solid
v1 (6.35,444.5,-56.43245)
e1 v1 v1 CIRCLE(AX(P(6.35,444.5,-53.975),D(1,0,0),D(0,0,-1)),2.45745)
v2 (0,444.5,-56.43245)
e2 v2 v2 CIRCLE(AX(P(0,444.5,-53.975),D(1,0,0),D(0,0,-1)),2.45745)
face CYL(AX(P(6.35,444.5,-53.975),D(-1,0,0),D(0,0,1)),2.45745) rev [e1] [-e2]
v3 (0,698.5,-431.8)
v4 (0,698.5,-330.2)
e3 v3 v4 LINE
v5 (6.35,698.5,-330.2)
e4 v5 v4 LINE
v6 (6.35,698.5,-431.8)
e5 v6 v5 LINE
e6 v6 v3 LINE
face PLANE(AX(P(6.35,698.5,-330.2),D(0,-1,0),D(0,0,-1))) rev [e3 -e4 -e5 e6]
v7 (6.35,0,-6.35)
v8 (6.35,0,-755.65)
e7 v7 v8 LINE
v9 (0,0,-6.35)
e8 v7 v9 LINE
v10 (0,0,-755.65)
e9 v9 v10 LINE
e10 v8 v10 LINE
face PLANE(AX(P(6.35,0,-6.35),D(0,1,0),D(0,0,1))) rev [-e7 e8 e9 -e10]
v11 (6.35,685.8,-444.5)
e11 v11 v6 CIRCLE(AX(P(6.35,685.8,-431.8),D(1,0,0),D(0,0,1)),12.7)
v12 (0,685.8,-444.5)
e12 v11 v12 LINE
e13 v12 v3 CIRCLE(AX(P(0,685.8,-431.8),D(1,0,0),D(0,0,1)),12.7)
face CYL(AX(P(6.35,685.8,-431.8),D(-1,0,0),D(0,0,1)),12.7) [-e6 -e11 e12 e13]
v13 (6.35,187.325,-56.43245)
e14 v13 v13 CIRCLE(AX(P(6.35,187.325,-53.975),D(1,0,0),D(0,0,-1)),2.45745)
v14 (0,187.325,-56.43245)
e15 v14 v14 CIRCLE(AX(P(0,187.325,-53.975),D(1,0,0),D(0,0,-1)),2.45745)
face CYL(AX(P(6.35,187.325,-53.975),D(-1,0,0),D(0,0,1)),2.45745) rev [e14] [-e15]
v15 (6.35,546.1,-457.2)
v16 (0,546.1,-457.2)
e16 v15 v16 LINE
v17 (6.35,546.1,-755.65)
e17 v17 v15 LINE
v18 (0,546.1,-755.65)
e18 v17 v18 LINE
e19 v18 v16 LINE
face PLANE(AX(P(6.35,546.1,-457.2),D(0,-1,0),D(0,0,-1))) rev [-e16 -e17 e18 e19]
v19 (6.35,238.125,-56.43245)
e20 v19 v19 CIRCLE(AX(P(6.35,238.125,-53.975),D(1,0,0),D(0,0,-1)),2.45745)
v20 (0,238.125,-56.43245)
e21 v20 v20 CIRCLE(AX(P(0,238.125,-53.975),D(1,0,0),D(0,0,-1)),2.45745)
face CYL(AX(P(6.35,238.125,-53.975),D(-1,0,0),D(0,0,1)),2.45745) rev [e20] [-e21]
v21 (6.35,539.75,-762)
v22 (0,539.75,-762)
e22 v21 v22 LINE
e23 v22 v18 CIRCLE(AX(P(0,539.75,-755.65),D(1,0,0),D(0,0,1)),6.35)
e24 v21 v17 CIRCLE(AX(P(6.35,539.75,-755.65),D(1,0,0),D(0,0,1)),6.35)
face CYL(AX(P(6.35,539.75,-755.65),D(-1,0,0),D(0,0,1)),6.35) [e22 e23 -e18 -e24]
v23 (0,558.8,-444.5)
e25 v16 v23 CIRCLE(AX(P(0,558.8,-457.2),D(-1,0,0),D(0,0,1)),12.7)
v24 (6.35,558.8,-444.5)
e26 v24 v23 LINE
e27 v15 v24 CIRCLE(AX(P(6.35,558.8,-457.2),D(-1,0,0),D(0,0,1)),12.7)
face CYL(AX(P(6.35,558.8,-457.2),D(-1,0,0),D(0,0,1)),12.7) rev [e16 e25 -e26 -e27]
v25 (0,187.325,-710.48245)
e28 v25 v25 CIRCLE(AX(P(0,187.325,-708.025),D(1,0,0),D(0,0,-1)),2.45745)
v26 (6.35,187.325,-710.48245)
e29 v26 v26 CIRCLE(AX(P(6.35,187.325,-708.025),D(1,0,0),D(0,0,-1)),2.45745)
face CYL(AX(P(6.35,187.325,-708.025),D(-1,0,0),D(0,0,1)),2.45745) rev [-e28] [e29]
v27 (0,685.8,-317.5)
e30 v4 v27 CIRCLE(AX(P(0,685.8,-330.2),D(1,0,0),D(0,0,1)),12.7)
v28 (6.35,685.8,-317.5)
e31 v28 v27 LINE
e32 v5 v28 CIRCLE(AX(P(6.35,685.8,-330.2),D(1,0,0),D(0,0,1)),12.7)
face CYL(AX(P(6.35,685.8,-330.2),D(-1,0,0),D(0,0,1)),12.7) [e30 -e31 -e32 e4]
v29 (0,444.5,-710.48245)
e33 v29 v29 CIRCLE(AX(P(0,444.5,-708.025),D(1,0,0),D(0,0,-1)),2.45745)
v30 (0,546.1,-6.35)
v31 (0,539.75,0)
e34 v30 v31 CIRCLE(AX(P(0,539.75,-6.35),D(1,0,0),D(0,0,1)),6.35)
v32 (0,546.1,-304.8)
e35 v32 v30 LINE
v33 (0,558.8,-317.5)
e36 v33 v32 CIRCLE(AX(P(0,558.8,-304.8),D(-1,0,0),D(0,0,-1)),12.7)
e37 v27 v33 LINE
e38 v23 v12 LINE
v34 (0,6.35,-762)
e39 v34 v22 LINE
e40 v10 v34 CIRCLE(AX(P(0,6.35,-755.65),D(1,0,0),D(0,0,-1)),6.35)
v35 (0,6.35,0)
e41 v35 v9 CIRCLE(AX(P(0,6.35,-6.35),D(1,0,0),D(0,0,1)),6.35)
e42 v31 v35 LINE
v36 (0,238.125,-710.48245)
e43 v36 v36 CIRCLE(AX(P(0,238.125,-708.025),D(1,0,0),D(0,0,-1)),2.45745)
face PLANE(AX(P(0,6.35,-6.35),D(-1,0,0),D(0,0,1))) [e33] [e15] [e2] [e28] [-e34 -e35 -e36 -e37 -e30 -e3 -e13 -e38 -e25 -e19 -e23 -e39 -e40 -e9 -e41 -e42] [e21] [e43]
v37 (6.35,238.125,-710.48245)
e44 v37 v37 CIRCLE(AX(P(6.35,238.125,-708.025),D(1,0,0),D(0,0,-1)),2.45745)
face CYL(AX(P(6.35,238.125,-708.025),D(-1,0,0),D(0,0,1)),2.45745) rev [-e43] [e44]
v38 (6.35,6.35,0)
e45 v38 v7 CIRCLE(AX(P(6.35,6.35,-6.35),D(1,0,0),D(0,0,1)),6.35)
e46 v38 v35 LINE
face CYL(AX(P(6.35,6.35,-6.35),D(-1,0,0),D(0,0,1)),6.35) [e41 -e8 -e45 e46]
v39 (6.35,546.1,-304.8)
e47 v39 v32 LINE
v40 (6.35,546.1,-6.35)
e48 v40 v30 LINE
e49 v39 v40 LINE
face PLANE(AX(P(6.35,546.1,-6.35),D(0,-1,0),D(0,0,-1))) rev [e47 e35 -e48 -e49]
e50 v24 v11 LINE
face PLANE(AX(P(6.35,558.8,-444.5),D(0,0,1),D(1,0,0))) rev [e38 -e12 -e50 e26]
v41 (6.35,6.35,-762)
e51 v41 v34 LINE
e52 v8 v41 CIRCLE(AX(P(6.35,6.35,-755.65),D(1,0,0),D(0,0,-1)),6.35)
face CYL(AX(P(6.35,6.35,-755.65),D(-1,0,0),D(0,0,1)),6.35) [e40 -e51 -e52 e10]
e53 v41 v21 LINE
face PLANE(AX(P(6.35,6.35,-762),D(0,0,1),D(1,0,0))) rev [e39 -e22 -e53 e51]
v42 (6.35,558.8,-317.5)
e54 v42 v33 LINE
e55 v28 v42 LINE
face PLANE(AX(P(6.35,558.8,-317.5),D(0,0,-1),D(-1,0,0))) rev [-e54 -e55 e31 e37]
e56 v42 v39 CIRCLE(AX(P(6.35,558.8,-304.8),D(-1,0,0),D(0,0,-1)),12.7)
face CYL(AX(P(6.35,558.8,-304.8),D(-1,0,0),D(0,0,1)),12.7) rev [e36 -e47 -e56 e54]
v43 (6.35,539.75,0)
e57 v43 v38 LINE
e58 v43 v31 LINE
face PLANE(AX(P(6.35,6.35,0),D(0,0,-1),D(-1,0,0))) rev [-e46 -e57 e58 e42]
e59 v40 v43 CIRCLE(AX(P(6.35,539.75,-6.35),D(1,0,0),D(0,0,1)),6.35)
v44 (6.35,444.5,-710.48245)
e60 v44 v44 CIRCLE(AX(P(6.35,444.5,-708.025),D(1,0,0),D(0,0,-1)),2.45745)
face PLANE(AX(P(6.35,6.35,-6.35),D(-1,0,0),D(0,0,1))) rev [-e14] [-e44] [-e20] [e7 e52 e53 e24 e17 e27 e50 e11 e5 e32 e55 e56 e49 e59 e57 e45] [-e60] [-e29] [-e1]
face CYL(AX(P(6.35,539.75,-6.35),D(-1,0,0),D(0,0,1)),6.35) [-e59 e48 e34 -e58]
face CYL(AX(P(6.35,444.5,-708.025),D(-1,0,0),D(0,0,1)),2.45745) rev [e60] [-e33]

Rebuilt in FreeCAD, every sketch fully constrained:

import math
import FreeCAD as App
import Part
import Sketcher
from FreeCAD import Vector
Q = App.Units.Quantity

doc = App.newDocument("Part")
params = doc.addObject("Spreadsheet::Sheet", "Params")
for row, (alias, value) in enumerate([
    ("sketch1_radius", "0.5 in"),
    ("sketch1_width", "5 in"),
    ("sketch1_width2", "21 in"),
    ("sketch1_height", "4 in"),
    ("sketch1_radius2", "0.25 in"),
    ("pad1_length", "0.25 in"),
], start=1):
    params.set(f"A{row}", alias)
    params.set(f"B{row}", "=" + value)
    params.setAlias(f"B{row}", alias)

body = doc.addObject("PartDesign::Body", "Body")

sketch1 = body.newObject("Sketcher::SketchObject", "Sketch")
sketch1.AttachmentSupport = (doc.getObject("YZ_Plane"), [""])
sketch1.MapMode = "FlatFace"
sketch1.addGeometry([
    Part.LineSegment(Vector(546.1, -755.6, 0), Vector(546.1, -457.2, 0)),
    Part.ArcOfCircle(Part.Circle(Vector(558.8, -457.2, 0), Vector(0, 0, 1), 12.7), math.radians(90), math.radians(180)),
    Part.LineSegment(Vector(558.8, -444.5, 0), Vector(685.8, -444.5, 0)),
    Part.ArcOfCircle(Part.Circle(Vector(685.8, -431.8, 0), Vector(0, 0, 1), 12.7), math.radians(-90), math.radians(0)),
    Part.LineSegment(Vector(698.5, -431.8, 0), Vector(698.5, -330.2, 0)),
    Part.ArcOfCircle(Part.Circle(Vector(685.8, -330.2, 0), Vector(0, 0, 1), 12.7), math.radians(0), math.radians(90)),
    Part.LineSegment(Vector(685.8, -317.5, 0), Vector(558.8, -317.5, 0)),
    Part.ArcOfCircle(Part.Circle(Vector(558.8, -304.8, 0), Vector(0, 0, 1), 12.7), math.radians(180), math.radians(270)),
    Part.LineSegment(Vector(546.1, -304.8, 0), Vector(546.1, -6.3, 0)),
    Part.ArcOfCircle(Part.Circle(Vector(539.8, -6.3, 0), Vector(0, 0, 1), 6.3), math.radians(0), math.radians(90)),
    Part.LineSegment(Vector(539.8, 0, 0), Vector(6.3, 0, 0)),
    Part.ArcOfCircle(Part.Circle(Vector(6.3, -6.3, 0), Vector(0, 0, 1), 6.3), math.radians(90), math.radians(180)),
    Part.LineSegment(Vector(0, -6.3, 0), Vector(0, -755.6, 0)),
    Part.ArcOfCircle(Part.Circle(Vector(6.3, -755.7, 0), Vector(0, 0, 1), 6.3), math.radians(180), math.radians(270)),
    Part.LineSegment(Vector(6.3, -762, 0), Vector(539.8, -762, 0)),
    Part.ArcOfCircle(Part.Circle(Vector(539.8, -755.7, 0), Vector(0, 0, 1), 6.3), math.radians(-90), math.radians(0)),
    Part.Circle(Vector(187.3, -708, 0), Vector(0, 0, 1), 2.5),
    Part.Circle(Vector(238.1, -708, 0), Vector(0, 0, 1), 2.5),
    Part.Circle(Vector(187.3, -54, 0), Vector(0, 0, 1), 2.5),
    Part.Circle(Vector(238.1, -54, 0), Vector(0, 0, 1), 2.5),
    Part.Circle(Vector(444.5, -708, 0), Vector(0, 0, 1), 2.5),
    Part.Circle(Vector(444.5, -54, 0), Vector(0, 0, 1), 2.5),
], False)
sketch1.addConstraint([
    Sketcher.Constraint("Tangent", 0, 2, 1, 2),
    Sketcher.Constraint("Tangent", 1, 1, 2, 1),
    Sketcher.Constraint("Tangent", 2, 2, 3, 1),
    Sketcher.Constraint("Tangent", 3, 2, 4, 1),
    Sketcher.Constraint("Tangent", 4, 2, 5, 1),
    Sketcher.Constraint("Tangent", 5, 2, 6, 1),
    Sketcher.Constraint("Tangent", 6, 2, 7, 2),
    Sketcher.Constraint("Tangent", 7, 1, 8, 1),
    Sketcher.Constraint("Tangent", 8, 2, 9, 1),
    Sketcher.Constraint("Tangent", 9, 2, 10, 1),
    Sketcher.Constraint("Tangent", 10, 2, 11, 1),
    Sketcher.Constraint("Tangent", 11, 2, 12, 1),
    Sketcher.Constraint("Tangent", 12, 2, 13, 1),
    Sketcher.Constraint("Tangent", 13, 2, 14, 1),
    Sketcher.Constraint("Tangent", 14, 2, 15, 1),
    Sketcher.Constraint("Tangent", 15, 2, 0, 1),
    Sketcher.Constraint("Vertical", 0),
    Sketcher.Constraint("Horizontal", 2),
    Sketcher.Constraint("Vertical", 4),
    Sketcher.Constraint("Horizontal", 6),
    Sketcher.Constraint("Vertical", 8),
    Sketcher.Constraint("Horizontal", 10),
    Sketcher.Constraint("Vertical", 12),
    Sketcher.Constraint("Horizontal", 14),
    Sketcher.Constraint("Equal", 1, 3),
    Sketcher.Constraint("Equal", 3, 5),
    Sketcher.Constraint("Equal", 5, 7),
    Sketcher.Constraint("Equal", 9, 11),
    Sketcher.Constraint("Equal", 11, 13),
    Sketcher.Constraint("Equal", 13, 15),
    Sketcher.Constraint("Equal", 16, 17),
    Sketcher.Constraint("Equal", 17, 18),
    Sketcher.Constraint("Equal", 18, 19),
    Sketcher.Constraint("Equal", 19, 20),
    Sketcher.Constraint("Equal", 20, 21),
    Sketcher.Constraint("PointOnObject", 9, 2, -1),
    Sketcher.Constraint("PointOnObject", 11, 2, -2),
    Sketcher.Constraint("Horizontal", 16, 3, 17, 3),
    Sketcher.Constraint("Horizontal", 18, 3, 19, 3),
    Sketcher.Constraint("Horizontal", 17, 3, 20, 3),
    Sketcher.Constraint("Horizontal", 19, 3, 21, 3),
    Sketcher.Constraint("Vertical", 1, 3, 7, 3),
    Sketcher.Constraint("Vertical", 16, 3, 18, 3),
    Sketcher.Constraint("Vertical", 17, 3, 19, 3),
    Sketcher.Constraint("Vertical", 20, 3, 21, 3),
    Sketcher.Constraint("Equal", 0, 8),
    Sketcher.Constraint("Radius", 1, Q("0.5 in")),
    Sketcher.Constraint("DistanceX", 2, 1, 2, 2, Q("5 in")),
    Sketcher.Constraint("DistanceX", 10, 2, 10, 1, Q("21 in")),
    Sketcher.Constraint("DistanceY", 4, 1, 4, 2, Q("4 in")),
    Sketcher.Constraint("Radius", 9, Q("0.25 in")),
    Sketcher.Constraint("DistanceY", 12, 2, 12, 1, Q("29.5 in")),
    Sketcher.Constraint("DistanceX", 16, 3, 17, 3, Q("2 in")),
    Sketcher.Constraint("DistanceX", 20, 3, 0, 2, Q("4 in")),
    Sketcher.Constraint("Diameter", 16, Q("0.1935 in")),
    Sketcher.Constraint("DistanceX", -1, 1, 16, 3, Q("7.375 in")),
    Sketcher.Constraint("DistanceY", 16, 3, -1, 1, Q("27.875 in")),
    Sketcher.Constraint("DistanceY", 18, 3, -1, 1, Q("2.125 in")),
])
sketch1.setExpression("Constraints[46]", "Params.sketch1_radius")
sketch1.setExpression("Constraints[47]", "Params.sketch1_width")
sketch1.setExpression("Constraints[48]", "Params.sketch1_width2")
sketch1.setExpression("Constraints[49]", "Params.sketch1_height")
sketch1.setExpression("Constraints[50]", "Params.sketch1_radius2")
pad1 = body.newObject("PartDesign::Pad", "Pad")
pad1.Profile = sketch1
pad1.setExpression("Length", "Params.pad1_length")

doc.recompute()
